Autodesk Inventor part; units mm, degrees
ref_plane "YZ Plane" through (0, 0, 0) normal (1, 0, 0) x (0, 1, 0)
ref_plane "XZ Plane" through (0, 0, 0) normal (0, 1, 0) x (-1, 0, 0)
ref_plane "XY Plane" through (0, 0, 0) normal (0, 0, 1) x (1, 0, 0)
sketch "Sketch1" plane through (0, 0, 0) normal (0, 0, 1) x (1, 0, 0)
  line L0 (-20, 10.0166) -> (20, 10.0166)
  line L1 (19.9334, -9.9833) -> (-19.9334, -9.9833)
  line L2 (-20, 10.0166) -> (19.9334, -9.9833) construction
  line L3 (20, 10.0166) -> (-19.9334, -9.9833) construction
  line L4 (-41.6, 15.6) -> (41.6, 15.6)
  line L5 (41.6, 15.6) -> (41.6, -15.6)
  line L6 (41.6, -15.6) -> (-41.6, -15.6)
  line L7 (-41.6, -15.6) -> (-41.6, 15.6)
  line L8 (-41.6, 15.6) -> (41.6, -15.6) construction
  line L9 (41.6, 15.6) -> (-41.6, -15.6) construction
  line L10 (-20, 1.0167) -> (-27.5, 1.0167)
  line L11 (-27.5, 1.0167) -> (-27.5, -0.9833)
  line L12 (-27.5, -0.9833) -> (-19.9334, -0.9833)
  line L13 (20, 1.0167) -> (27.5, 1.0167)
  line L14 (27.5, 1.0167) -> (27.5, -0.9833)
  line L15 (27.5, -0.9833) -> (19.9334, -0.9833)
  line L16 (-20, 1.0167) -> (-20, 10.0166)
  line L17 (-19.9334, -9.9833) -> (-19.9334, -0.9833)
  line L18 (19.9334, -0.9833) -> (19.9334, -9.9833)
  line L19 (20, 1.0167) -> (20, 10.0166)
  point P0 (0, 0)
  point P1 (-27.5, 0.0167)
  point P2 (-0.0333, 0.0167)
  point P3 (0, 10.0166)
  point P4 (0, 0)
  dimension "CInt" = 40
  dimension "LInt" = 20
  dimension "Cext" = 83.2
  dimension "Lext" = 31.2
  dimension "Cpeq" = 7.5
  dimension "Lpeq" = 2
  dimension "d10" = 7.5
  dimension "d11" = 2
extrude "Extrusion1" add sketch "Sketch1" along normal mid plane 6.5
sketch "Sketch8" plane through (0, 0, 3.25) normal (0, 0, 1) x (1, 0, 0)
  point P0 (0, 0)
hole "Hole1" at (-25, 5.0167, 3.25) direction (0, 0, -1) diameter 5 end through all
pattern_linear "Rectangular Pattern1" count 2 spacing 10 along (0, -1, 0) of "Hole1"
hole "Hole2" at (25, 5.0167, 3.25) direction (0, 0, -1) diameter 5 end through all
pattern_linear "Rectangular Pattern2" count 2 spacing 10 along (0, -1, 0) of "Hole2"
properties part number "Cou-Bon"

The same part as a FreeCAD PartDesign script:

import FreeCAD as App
import Part
import Sketcher

V = App.Vector


def add_polygon(sketch, points):
    """Adds a closed chain of lines whose ends are joined by coincident constraints."""
    first, n = sketch.GeometryCount, len(points)
    for a, b in zip(points, points[1:] + points[:1]):
        sketch.addGeometry(Part.LineSegment(App.Vector(*a, 0), App.Vector(*b, 0)), False)
    for i in range(n):
        sketch.addConstraint(Sketcher.Constraint("Coincident", first + i, 2, first + (i + 1) % n, 1))

doc = App.newDocument("Part")
body = doc.addObject("PartDesign::Body", "Body")

sketch1 = body.newObject("Sketcher::SketchObject", "Sketch")
sketch1.AttachmentSupport = (doc.getObject("XY_Plane"), [""])
sketch1.MapMode = "FlatFace"
add_polygon(sketch1, [(41.6, 15.6), (-41.6, 15.6), (-41.6, -15.6), (41.6, -15.6)])
add_polygon(sketch1, [(-20, 1), (-20, 10), (20, 10), (20, 1), (27.5, 1), (27.5, -1), (19.9, -1), (19.9, -10), (-19.9, -10), (-19.9, -1), (-27.5, -1), (-27.5, 1)])
sketch1.addConstraint([
    Sketcher.Constraint("Horizontal", 0),
    Sketcher.Constraint("Vertical", 1),
    Sketcher.Constraint("Horizontal", 2),
    Sketcher.Constraint("Vertical", 3),
    Sketcher.Constraint("Vertical", 4),
    Sketcher.Constraint("Horizontal", 5),
    Sketcher.Constraint("Vertical", 6),
    Sketcher.Constraint("Horizontal", 7),
    Sketcher.Constraint("Vertical", 8),
    Sketcher.Constraint("Horizontal", 9),
    Sketcher.Constraint("Vertical", 10),
    Sketcher.Constraint("Horizontal", 11),
    Sketcher.Constraint("Vertical", 12),
    Sketcher.Constraint("Horizontal", 13),
    Sketcher.Constraint("Vertical", 14),
    Sketcher.Constraint("Horizontal", 15),
    Sketcher.Constraint("Symmetric", 0, 2, 2, 2, -1, 1),
    Sketcher.Constraint("Symmetric", 9, 2, 12, 2, -2),
    Sketcher.Constraint("Symmetric", 7, 2, 14, 2, -2),
    Sketcher.Constraint("Equal", 7, 15),
    Sketcher.Constraint("Equal", 6, 10),
    Sketcher.Constraint("DistanceX", 5, 1, 5, 2, 40.0),
    Sketcher.Constraint("DistanceY", 8, 2, 8, 1, 2.0),
    Sketcher.Constraint("DistanceX", 0, 2, 0, 1, 83.2),
    Sketcher.Constraint("DistanceX", 7, 1, 7, 2, 7.5),
    Sketcher.Constraint("DistanceY", 1, 2, 1, 1, 31.2),
    Sketcher.Constraint("DistanceY", 10, 2, 5, 2, 20.0),
    Sketcher.Constraint("DistanceX", 9, 2, 9, 1, 7.5666),
    Sketcher.Constraint("DistanceY", -1, 1, 4, 2, 10.0166),
])
pad1 = body.newObject("PartDesign::Pad", "Pad")
pad1.Profile = sketch1
pad1.Length = 6.5
pad1.Midplane = True

sketch2 = body.newObject("Sketcher::SketchObject", "Sketch001")
sketch2.AttachmentSupport = (doc.getObject("XY_Plane"), [""])
sketch2.MapMode = "FlatFace"
sketch2.AttachmentOffset = App.Placement(V(0, 0, 3.25), App.Rotation())
sketch2.addGeometry(Part.Circle(V(-25, 5, 0), V(0, 0, 1), 2.5), False)
sketch2.addConstraint([
    Sketcher.Constraint("Diameter", 0, 5.0),
    Sketcher.Constraint("DistanceX", 0, 3, -1, 1, 25.0),
    Sketcher.Constraint("DistanceY", -1, 1, 0, 3, 5.0167),
])
doc.recompute()
hole = body.newObject("PartDesign::Hole", "Hole")
hole.Profile = sketch2
hole.ThreadType = "None"
hole.Diameter = 5
hole.DepthType = "ThroughAll"
doc.recompute()

linearpattern = body.newObject("PartDesign::LinearPattern", "LinearPattern")
linearpattern.Originals = [hole]
linearpattern.Direction = (doc.getObject("Y_Axis"), [""])
linearpattern.Mode = "offset"
linearpattern.Offset = 10
linearpattern.Occurrences = 2
linearpattern.Reversed = True
body.Tip = linearpattern

sketch3 = body.newObject("Sketcher::SketchObject", "Sketch002")
sketch3.AttachmentSupport = (doc.getObject("XY_Plane"), [""])
sketch3.MapMode = "FlatFace"
sketch3.AttachmentOffset = App.Placement(V(0, 0, 3.25), App.Rotation())
sketch3.addGeometry(Part.Circle(V(25, 5, 0), V(0, 0, 1), 2.5), False)
sketch3.addConstraint([
    Sketcher.Constraint("Diameter", 0, 5.0),
    Sketcher.Constraint("DistanceX", -1, 1, 0, 3, 25.0),
    Sketcher.Constraint("DistanceY", -1, 1, 0, 3, 5.0167),
])
doc.recompute()
hole2 = body.newObject("PartDesign::Hole", "Hole001")
hole2.Profile = sketch3
hole2.ThreadType = "None"
hole2.Diameter = 5
hole2.DepthType = "ThroughAll"
doc.recompute()

linearpattern2 = body.newObject("PartDesign::LinearPattern", "LinearPattern001")
linearpattern2.Originals = [hole2]
linearpattern2.Direction = (doc.getObject("Y_Axis"), [""])
linearpattern2.Mode = "offset"
linearpattern2.Offset = 10
linearpattern2.Occurrences = 2
linearpattern2.Reversed = True
body.Tip = linearpattern2

doc.recompute()
